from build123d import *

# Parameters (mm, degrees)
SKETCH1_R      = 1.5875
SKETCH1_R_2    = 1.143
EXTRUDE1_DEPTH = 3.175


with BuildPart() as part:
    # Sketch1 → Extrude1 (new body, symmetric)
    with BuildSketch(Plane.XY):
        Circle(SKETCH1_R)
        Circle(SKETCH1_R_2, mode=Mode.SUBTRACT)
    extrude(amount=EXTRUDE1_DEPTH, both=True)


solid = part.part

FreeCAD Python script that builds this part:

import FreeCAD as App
import Part
import Sketcher

V = App.Vector
Q = App.Units.Quantity

doc = App.newDocument("Part")
params = doc.addObject("Spreadsheet::Sheet", "Params")
for row, (alias, value) in enumerate([
    ("sketch1_diameter", "0.09 in"),
    ("sketch1_diameter2", "0.125 in"),
    ("pad1_length", "0.25 in"),
], start=1):
    params.set(f"A{row}", alias)
    params.set(f"B{row}", "=" + value)
    params.setAlias(f"B{row}", alias)

body = doc.addObject("PartDesign::Body", "Body")

sketch1 = doc.addObject("Sketcher::SketchObject", "Sketch")
body.addObject(sketch1)
sketch1.AttachmentSupport = (doc.XY_Plane, [""])
sketch1.MapMode = "FlatFace"
sketch1.addGeometry(Part.Circle(V(0, 0, 0), V(0, 0, 1), 1.5875), False)
sketch1.addGeometry(Part.Circle(V(0, 0, 0), V(0, 0, 1), 1.143), False)
sketch1.addConstraint(Sketcher.Constraint("Coincident", 0, 3, -1, 1))
sketch1.addConstraint(Sketcher.Constraint("Coincident", 1, 3, -1, 1))
sketch1.addConstraint(Sketcher.Constraint("Diameter", 1, Q("0.09 in")))
sketch1.addConstraint(Sketcher.Constraint("Diameter", 0, Q("0.125 in")))
sketch1.setExpression("Constraints[2]", "Params.sketch1_diameter")
sketch1.setExpression("Constraints[3]", "Params.sketch1_diameter2")
pad1 = doc.addObject("PartDesign::Pad", "Pad")
body.addObject(pad1)
pad1.Profile = sketch1
pad1.setExpression("Length", "Params.pad1_length")
pad1.Midplane = True

doc.recompute()
